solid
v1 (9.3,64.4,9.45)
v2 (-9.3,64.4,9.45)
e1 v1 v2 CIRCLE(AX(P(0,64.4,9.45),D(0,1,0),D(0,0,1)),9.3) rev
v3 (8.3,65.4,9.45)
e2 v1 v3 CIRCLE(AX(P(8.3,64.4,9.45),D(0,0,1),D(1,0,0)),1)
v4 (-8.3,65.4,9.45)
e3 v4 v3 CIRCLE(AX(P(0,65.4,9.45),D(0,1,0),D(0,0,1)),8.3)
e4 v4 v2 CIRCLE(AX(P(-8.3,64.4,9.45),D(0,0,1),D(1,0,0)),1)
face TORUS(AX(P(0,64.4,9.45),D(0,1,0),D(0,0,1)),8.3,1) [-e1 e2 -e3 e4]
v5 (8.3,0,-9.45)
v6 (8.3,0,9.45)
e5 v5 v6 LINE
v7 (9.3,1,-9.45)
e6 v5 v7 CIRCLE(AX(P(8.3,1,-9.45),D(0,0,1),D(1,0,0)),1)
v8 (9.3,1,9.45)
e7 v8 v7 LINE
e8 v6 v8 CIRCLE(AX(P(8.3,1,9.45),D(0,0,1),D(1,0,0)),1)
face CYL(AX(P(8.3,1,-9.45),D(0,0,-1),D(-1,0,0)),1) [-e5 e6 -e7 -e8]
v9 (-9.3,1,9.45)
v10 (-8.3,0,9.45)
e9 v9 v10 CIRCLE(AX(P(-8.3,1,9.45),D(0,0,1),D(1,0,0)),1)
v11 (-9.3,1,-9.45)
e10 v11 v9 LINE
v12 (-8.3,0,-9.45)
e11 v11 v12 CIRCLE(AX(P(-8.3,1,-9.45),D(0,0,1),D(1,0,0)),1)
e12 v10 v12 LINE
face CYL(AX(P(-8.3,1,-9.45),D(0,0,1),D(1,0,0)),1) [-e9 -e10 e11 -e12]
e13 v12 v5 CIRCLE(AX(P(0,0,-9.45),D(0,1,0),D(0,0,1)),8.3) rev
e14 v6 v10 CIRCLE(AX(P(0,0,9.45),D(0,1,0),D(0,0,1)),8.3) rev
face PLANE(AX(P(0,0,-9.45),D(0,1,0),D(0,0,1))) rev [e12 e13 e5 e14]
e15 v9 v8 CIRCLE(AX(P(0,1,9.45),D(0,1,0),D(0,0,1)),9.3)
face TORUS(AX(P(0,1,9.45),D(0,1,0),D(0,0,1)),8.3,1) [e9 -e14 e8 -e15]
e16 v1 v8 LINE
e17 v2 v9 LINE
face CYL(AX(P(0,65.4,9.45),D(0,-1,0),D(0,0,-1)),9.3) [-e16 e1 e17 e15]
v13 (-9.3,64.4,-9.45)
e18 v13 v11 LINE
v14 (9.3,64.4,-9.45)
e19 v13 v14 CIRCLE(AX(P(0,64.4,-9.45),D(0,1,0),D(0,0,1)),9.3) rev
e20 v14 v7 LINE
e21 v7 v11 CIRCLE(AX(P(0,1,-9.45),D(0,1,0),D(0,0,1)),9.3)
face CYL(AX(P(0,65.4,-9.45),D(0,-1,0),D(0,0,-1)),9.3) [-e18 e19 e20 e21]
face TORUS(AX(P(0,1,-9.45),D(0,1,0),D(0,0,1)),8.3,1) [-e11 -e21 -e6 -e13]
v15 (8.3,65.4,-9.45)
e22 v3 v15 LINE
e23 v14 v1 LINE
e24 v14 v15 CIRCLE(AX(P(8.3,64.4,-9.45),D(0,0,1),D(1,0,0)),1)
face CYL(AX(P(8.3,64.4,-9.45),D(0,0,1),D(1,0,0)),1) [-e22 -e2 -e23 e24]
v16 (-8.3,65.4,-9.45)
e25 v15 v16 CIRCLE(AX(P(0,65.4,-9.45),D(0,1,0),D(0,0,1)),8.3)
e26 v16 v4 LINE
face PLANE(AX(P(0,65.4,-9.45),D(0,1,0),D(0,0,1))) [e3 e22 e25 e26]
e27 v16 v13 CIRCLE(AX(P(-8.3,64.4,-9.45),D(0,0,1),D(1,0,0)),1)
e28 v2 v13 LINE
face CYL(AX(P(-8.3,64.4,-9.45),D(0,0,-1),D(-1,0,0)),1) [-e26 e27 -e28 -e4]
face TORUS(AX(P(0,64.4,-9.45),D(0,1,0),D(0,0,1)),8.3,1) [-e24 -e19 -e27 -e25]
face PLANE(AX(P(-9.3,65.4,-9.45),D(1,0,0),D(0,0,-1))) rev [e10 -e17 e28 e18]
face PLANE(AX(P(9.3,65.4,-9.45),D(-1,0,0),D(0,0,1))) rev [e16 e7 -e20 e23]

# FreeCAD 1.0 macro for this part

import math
import FreeCAD as App
import Part
import Sketcher

V = App.Vector
Q = App.Units.Quantity


def edges_at(feature, points):
    """Names of the edges that pass closest to the given points."""
    edges = feature.Shape.Edges
    near = lambda p: min(range(len(edges)), key=lambda i: edges[i].distToShape(Part.Vertex(*p))[0])
    return sorted({f"Edge{near(p) + 1}" for p in points})

doc = App.newDocument("Part")
body = doc.addObject("PartDesign::Body", "Body")

# Sketch on XZ plane
sketch1 = body.newObject("Sketcher::SketchObject", "Sketch")
sketch1.AttachmentSupport = (doc.getObject("XZ_Plane"), [""])
sketch1.MapMode = "FlatFace"
sketch1.addGeometry([
    Part.LineSegment(V(9, 9, 0), V(9, -9, 0)),
    Part.ArcOfCircle(Part.Circle(V(0, -9, 0), V(0, 0, 1), 9), math.radians(180), math.radians(360)),
    Part.LineSegment(V(-9, -9, 0), V(-9, 9, 0)),
    Part.ArcOfCircle(Part.Circle(V(0, 9, 0), V(0, 0, 1), 9), math.radians(0), math.radians(180)),
], False)
sketch1.addConstraint([
    Sketcher.Constraint("Tangent", 0, 2, 1, 2),
    Sketcher.Constraint("Tangent", 1, 1, 2, 1),
    Sketcher.Constraint("Tangent", 2, 2, 3, 2),
    Sketcher.Constraint("Tangent", 3, 1, 0, 1),
    Sketcher.Constraint("Vertical", 0),
    Sketcher.Constraint("Vertical", 2),
    Sketcher.Constraint("Symmetric", 1, 3, 3, 3, -1, 1),
    Sketcher.Constraint("Radius", 1, Q("9.3 mm")),
    Sketcher.Constraint("DistanceY", 0, 2, 0, 1, Q("18.9 mm")),
])
pad1 = body.newObject("PartDesign::Pad", "Pad")
pad1.Profile = sketch1
pad1.Length = 65.4
pad1.Reversed = True
doc.recompute()

fillet = body.newObject("PartDesign::Fillet", "Fillet")
fillet.Base = (pad1, edges_at(pad1, [
    (0, 65.4, 18.75),
    (9.3, 65.4, 0),
    (0, 65.4, -18.75),
    (9.3, 0, 0),
    (0, 0, 18.75),
    (-9.3, 0, 0),
    (0, 0, -18.75),
    (-9.3, 65.4, 0),
]))
fillet.Radius = 1

doc.recompute()
